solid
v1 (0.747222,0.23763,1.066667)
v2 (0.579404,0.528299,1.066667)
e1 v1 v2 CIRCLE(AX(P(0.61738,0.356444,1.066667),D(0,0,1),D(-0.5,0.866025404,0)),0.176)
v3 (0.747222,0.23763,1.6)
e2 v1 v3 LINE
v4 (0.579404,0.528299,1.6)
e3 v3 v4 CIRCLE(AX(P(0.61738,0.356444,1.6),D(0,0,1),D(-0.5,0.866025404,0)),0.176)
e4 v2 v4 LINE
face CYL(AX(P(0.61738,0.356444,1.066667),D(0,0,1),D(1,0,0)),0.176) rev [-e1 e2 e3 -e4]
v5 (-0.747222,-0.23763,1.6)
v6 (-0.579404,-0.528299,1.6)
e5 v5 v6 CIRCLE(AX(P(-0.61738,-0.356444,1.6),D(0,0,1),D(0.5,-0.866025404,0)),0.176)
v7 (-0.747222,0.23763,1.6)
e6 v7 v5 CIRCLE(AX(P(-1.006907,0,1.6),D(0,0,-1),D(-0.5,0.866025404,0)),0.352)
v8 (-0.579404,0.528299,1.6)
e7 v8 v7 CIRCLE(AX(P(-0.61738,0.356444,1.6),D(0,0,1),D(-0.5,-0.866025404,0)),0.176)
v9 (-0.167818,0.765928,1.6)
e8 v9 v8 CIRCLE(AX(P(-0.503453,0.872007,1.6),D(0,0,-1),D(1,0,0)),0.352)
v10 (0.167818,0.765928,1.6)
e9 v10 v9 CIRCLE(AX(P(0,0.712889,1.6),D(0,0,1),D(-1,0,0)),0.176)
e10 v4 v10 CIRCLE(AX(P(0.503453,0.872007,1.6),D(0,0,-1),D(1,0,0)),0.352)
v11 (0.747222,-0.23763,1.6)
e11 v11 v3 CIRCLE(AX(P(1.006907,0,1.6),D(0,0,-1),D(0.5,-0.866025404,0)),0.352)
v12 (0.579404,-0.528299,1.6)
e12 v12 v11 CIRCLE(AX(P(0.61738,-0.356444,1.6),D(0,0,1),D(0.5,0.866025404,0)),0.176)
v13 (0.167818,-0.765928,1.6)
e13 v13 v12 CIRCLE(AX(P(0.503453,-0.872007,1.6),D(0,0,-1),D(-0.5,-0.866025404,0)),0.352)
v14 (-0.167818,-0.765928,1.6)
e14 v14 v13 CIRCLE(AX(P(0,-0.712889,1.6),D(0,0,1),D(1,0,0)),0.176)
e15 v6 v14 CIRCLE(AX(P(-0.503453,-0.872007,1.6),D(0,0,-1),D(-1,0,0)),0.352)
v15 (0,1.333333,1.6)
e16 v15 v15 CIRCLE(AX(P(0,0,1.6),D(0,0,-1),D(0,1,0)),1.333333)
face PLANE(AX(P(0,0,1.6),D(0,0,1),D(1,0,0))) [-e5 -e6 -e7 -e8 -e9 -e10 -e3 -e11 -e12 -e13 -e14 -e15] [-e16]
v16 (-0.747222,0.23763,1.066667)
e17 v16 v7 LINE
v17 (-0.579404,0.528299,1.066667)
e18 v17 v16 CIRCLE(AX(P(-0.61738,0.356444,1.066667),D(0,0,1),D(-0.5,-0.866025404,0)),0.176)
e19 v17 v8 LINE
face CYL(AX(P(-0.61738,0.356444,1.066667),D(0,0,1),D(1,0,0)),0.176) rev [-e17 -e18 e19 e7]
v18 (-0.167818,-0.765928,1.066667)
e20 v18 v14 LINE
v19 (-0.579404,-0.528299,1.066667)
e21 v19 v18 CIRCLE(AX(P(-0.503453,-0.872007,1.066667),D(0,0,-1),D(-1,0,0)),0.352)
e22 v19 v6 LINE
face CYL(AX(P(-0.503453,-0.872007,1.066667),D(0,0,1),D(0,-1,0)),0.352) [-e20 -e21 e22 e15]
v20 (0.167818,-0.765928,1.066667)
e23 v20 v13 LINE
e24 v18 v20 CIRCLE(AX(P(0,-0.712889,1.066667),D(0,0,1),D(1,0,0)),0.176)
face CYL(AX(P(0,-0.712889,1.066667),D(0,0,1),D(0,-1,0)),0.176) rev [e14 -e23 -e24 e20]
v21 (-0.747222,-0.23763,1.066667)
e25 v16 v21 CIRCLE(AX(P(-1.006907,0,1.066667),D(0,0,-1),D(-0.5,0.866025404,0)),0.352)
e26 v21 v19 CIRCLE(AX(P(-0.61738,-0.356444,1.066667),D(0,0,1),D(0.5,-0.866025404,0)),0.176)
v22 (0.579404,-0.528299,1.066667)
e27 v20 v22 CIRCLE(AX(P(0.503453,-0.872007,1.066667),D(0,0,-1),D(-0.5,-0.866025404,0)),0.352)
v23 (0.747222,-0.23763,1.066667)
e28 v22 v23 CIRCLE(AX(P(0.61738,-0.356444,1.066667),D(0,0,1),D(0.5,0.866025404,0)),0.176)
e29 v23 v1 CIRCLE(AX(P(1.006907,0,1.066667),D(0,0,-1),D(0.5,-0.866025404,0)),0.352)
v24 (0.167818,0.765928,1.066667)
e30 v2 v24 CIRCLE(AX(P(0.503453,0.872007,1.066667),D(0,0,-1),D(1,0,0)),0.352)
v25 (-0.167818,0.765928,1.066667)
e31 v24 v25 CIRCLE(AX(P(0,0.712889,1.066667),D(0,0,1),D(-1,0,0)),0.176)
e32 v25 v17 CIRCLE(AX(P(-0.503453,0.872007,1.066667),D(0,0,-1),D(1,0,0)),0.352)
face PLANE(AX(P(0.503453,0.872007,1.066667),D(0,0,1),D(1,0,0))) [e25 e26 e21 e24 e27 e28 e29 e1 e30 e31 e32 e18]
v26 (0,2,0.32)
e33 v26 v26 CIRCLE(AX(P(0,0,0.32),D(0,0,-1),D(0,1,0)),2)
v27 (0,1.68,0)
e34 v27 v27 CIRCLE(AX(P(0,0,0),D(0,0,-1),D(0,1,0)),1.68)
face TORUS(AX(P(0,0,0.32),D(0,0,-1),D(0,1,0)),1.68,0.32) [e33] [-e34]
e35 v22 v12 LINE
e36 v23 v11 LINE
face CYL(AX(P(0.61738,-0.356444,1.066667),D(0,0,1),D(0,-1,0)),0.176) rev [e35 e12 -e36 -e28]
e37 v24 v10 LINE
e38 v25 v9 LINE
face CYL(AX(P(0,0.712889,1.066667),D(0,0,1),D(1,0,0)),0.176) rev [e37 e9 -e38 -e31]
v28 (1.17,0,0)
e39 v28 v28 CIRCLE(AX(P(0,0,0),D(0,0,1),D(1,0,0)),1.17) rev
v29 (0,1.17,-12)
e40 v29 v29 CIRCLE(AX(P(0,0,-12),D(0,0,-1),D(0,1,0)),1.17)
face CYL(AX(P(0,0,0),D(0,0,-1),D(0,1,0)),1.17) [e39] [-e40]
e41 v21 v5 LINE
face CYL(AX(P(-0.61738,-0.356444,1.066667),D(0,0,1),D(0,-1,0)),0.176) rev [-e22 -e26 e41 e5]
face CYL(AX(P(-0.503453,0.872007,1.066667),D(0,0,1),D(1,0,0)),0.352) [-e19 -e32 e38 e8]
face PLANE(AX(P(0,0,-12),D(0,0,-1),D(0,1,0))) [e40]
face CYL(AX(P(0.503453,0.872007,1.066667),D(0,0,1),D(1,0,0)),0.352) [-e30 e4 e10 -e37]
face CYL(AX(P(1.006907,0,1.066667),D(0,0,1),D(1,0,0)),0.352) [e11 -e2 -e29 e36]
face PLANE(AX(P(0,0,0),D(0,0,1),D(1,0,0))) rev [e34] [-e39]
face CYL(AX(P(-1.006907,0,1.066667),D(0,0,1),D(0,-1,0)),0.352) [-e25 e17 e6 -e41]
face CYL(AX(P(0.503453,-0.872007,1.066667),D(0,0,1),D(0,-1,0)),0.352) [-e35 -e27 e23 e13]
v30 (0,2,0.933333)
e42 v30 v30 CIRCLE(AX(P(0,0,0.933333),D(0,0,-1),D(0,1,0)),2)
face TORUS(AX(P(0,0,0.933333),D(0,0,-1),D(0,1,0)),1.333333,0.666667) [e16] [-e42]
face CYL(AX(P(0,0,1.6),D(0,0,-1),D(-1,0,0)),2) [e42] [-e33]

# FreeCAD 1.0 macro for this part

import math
import FreeCAD as App
import Part
import Sketcher
Q = App.Units.Quantity


def add_polygon(sketch, points):
    """Adds a closed chain of lines whose ends are joined by coincident constraints."""
    first, n = sketch.GeometryCount, len(points)
    for a, b in zip(points, points[1:] + points[:1]):
        sketch.addGeometry(Part.LineSegment(App.Vector(*a, 0), App.Vector(*b, 0)), False)
    for i in range(n):
        sketch.addConstraint(Sketcher.Constraint("Coincident", first + i, 2, first + (i + 1) % n, 1))

doc = App.newDocument("Part")
body = doc.addObject("PartDesign::Body", "Body")

sketch1 = doc.addObject("Sketcher::SketchObject", "Sketch")
body.addObject(sketch1)
sketch1.AttachmentSupport = (doc.YZ_Plane, [""])
sketch1.MapMode = "FlatFace"
add_polygon(sketch1, [(1.2, 0), (0, 0), (0, -12), (1.2, -12)])
sketch1.addConstraint(Sketcher.Constraint("Horizontal", 0))
sketch1.addConstraint(Sketcher.Constraint("Vertical", 1))
sketch1.addConstraint(Sketcher.Constraint("Horizontal", 2))
sketch1.addConstraint(Sketcher.Constraint("Vertical", 3))
sketch1.addConstraint(Sketcher.Constraint("Coincident", 0, 2, -1, 1))
sketch1.addConstraint(Sketcher.Constraint("DistanceY", 1, 2, 1, 1, 12.0))
sketch1.addConstraint(Sketcher.Constraint("DistanceX", 0, 2, 0, 1, 1.17))
revolution = doc.addObject("PartDesign::Revolution", "Revolution")
body.addObject(revolution)
revolution.Profile = sketch1
revolution.ReferenceAxis = (sketch1, ["V_Axis"])
revolution.Angle = 360

sketch2 = doc.addObject("Sketcher::SketchObject", "Sketch001")
body.addObject(sketch2)
sketch2.AttachmentSupport = (doc.XY_Plane, [""])
sketch2.MapMode = "FlatFace"
sketch2.addGeometry(Part.Circle(App.Vector(0, 0, 0), App.Vector(0, 0, 1), 2), False)
sketch2.addConstraint(Sketcher.Constraint("Coincident", 0, 3, -1, 1))
sketch2.addConstraint(Sketcher.Constraint("Diameter", 0, 4.0))
pad1 = doc.addObject("PartDesign::Pad", "Pad")
body.addObject(pad1)
pad1.Profile = sketch2
pad1.Length = 1.6

sketch3 = doc.addObject("Sketcher::SketchObject", "Sketch002")
body.addObject(sketch3)
sketch3.AttachmentSupport = (doc.YZ_Plane, [""])
sketch3.MapMode = "FlatFace"
sketch3.addGeometry(Part.LineSegment(App.Vector(2, 0.93, 0), App.Vector(2, 0.32, 0)), False)
sketch3.addGeometry(Part.ArcOfCircle(Part.Circle(App.Vector(1.68, 0.32, 0), App.Vector(0, 0, 1), 0.32), math.radians(-90), math.radians(0)), False)
sketch3.addGeometry(Part.LineSegment(App.Vector(1.68, 0, 0), App.Vector(1.68, -0.25, 0)), False)
sketch3.addGeometry(Part.LineSegment(App.Vector(1.68, -0.25, 0), App.Vector(2.25, -0.25, 0)), False)
sketch3.addGeometry(Part.LineSegment(App.Vector(2.25, -0.25, 0), App.Vector(2.25, 1.85, 0)), False)
sketch3.addGeometry(Part.LineSegment(App.Vector(2.25, 1.85, 0), App.Vector(1.33, 1.85, 0)), False)
sketch3.addGeometry(Part.LineSegment(App.Vector(1.33, 1.85, 0), App.Vector(1.33, 1.6, 0)), False)
sketch3.addGeometry(Part.ArcOfCircle(Part.Circle(App.Vector(1.33, 0.93, 0), App.Vector(0, 0, 1), 0.67), math.radians(0), math.radians(90)), False)
sketch3.addConstraint(Sketcher.Constraint("Tangent", 0, 2, 1, 2))
sketch3.addConstraint(Sketcher.Constraint("Coincident", 1, 1, 2, 1))
sketch3.addConstraint(Sketcher.Constraint("Coincident", 2, 2, 3, 1))
sketch3.addConstraint(Sketcher.Constraint("Coincident", 3, 2, 4, 1))
sketch3.addConstraint(Sketcher.Constraint("Coincident", 4, 2, 5, 1))
sketch3.addConstraint(Sketcher.Constraint("Coincident", 5, 2, 6, 1))
sketch3.addConstraint(Sketcher.Constraint("Coincident", 6, 2, 7, 2))
sketch3.addConstraint(Sketcher.Constraint("Tangent", 7, 1, 0, 1))
sketch3.addConstraint(Sketcher.Constraint("Vertical", 0))
sketch3.addConstraint(Sketcher.Constraint("Vertical", 2))
sketch3.addConstraint(Sketcher.Constraint("Horizontal", 3))
sketch3.addConstraint(Sketcher.Constraint("Vertical", 4))
sketch3.addConstraint(Sketcher.Constraint("Horizontal", 5))
sketch3.addConstraint(Sketcher.Constraint("Vertical", 6))
sketch3.addConstraint(Sketcher.Constraint("PointOnObject", 1, 1, -1))
sketch3.addConstraint(Sketcher.Constraint("Vertical", 7, 3, 5, 2))
sketch3.addConstraint(Sketcher.Constraint("Equal", 2, 6))
sketch3.addConstraint(Sketcher.Constraint("Radius", 1, 0.32))
sketch3.addConstraint(Sketcher.Constraint("DistanceX", -1, 1, 0, 2, 2.0))
sketch3.addConstraint(Sketcher.Constraint("DistanceY", -1, 1, 6, 2, 1.6))
sketch3.addConstraint(Sketcher.Constraint("DistanceX", 3, 1, 3, 2, 0.574))
sketch3.addConstraint(Sketcher.Constraint("DistanceY", 2, 2, 2, 1, 0.254))
sketch3.addConstraint(Sketcher.Constraint("DistanceX", -1, 1, 1, 1, 1.68))
sketch3.addConstraint(Sketcher.Constraint("Radius", 7, 0.666667))
groove = doc.addObject("PartDesign::Groove", "Groove")
body.addObject(groove)
groove.Profile = sketch3
groove.ReferenceAxis = (sketch3, ["V_Axis"])
groove.Angle = 360

sketch4 = doc.addObject("Sketcher::SketchObject", "Sketch003")
body.addObject(sketch4)
sketch4.AttachmentSupport = (doc.XY_Plane, [""])
sketch4.MapMode = "FlatFace"
sketch4.AttachmentOffset = App.Placement(App.Vector(0, 0, 1.6), App.Rotation())
sketch4.addGeometry(Part.LineSegment(App.Vector(-0.33, 0.57, 0), App.Vector(0, 0, 0)), False)
sketch4.addGeometry(Part.LineSegment(App.Vector(0, 0, 0), App.Vector(0.33, 0.57, 0)), False)
sketch4.addGeometry(Part.ArcOfCircle(Part.Circle(App.Vector(0.5, 0.87, 0), App.Vector(0, 0, 1), 0.35), math.radians(-162), math.radians(-120)), False)
sketch4.addGeometry(Part.ArcOfCircle(Part.Circle(App.Vector(0, 0.71, 0), App.Vector(0, 0, 1), 0.18), math.radians(18), math.radians(162)), False)
sketch4.addGeometry(Part.ArcOfCircle(Part.Circle(App.Vector(-0.5, 0.87, 0), App.Vector(0, 0, 1), 0.35), math.radians(-60), math.radians(-18)), False)
sketch4.addConstraint(Sketcher.Constraint("Coincident", 0, 2, 1, 1))
sketch4.addConstraint(Sketcher.Constraint("Coincident", 1, 2, 2, 2))
sketch4.addConstraint(Sketcher.Constraint("Tangent", 2, 1, 3, 1))
sketch4.addConstraint(Sketcher.Constraint("Tangent", 3, 2, 4, 2))
sketch4.addConstraint(Sketcher.Constraint("Coincident", 4, 1, 0, 1))
sketch4.addConstraint(Sketcher.Constraint("Coincident", 0, 2, -1, 1))
sketch4.addConstraint(Sketcher.Constraint("Equal", 2, 4))
sketch4.addConstraint(Sketcher.Constraint("Symmetric", 2, 3, 4, 3, -2))
sketch4.addConstraint(Sketcher.Constraint("Horizontal", 1, 2, 4, 1))
sketch4.addConstraint(Sketcher.Constraint("Angle", 0, Q("-60 deg")))
sketch4.addConstraint(Sketcher.Constraint("Radius", 2, 0.352))
sketch4.addConstraint(Sketcher.Constraint("Radius", 3, 0.176))
sketch4.addConstraint(Sketcher.Constraint("DistanceX", 1, 2, 2, 3, 0.176))
sketch4.addConstraint(Sketcher.Constraint("DistanceY", -1, 1, 3, 3, 0.712889))
pocket1 = doc.addObject("PartDesign::Pocket", "Pocket")
body.addObject(pocket1)
pocket1.Profile = sketch4
pocket1.Length = 0.533333
doc.recompute()

polarpattern = doc.addObject("PartDesign::PolarPattern", "PolarPattern")
body.addObject(polarpattern)
polarpattern.Originals = [pocket1]
polarpattern.Axis = (doc.Z_Axis, [""])
polarpattern.Angle = 360
polarpattern.Occurrences = 6
body.Tip = polarpattern

doc.recompute()
